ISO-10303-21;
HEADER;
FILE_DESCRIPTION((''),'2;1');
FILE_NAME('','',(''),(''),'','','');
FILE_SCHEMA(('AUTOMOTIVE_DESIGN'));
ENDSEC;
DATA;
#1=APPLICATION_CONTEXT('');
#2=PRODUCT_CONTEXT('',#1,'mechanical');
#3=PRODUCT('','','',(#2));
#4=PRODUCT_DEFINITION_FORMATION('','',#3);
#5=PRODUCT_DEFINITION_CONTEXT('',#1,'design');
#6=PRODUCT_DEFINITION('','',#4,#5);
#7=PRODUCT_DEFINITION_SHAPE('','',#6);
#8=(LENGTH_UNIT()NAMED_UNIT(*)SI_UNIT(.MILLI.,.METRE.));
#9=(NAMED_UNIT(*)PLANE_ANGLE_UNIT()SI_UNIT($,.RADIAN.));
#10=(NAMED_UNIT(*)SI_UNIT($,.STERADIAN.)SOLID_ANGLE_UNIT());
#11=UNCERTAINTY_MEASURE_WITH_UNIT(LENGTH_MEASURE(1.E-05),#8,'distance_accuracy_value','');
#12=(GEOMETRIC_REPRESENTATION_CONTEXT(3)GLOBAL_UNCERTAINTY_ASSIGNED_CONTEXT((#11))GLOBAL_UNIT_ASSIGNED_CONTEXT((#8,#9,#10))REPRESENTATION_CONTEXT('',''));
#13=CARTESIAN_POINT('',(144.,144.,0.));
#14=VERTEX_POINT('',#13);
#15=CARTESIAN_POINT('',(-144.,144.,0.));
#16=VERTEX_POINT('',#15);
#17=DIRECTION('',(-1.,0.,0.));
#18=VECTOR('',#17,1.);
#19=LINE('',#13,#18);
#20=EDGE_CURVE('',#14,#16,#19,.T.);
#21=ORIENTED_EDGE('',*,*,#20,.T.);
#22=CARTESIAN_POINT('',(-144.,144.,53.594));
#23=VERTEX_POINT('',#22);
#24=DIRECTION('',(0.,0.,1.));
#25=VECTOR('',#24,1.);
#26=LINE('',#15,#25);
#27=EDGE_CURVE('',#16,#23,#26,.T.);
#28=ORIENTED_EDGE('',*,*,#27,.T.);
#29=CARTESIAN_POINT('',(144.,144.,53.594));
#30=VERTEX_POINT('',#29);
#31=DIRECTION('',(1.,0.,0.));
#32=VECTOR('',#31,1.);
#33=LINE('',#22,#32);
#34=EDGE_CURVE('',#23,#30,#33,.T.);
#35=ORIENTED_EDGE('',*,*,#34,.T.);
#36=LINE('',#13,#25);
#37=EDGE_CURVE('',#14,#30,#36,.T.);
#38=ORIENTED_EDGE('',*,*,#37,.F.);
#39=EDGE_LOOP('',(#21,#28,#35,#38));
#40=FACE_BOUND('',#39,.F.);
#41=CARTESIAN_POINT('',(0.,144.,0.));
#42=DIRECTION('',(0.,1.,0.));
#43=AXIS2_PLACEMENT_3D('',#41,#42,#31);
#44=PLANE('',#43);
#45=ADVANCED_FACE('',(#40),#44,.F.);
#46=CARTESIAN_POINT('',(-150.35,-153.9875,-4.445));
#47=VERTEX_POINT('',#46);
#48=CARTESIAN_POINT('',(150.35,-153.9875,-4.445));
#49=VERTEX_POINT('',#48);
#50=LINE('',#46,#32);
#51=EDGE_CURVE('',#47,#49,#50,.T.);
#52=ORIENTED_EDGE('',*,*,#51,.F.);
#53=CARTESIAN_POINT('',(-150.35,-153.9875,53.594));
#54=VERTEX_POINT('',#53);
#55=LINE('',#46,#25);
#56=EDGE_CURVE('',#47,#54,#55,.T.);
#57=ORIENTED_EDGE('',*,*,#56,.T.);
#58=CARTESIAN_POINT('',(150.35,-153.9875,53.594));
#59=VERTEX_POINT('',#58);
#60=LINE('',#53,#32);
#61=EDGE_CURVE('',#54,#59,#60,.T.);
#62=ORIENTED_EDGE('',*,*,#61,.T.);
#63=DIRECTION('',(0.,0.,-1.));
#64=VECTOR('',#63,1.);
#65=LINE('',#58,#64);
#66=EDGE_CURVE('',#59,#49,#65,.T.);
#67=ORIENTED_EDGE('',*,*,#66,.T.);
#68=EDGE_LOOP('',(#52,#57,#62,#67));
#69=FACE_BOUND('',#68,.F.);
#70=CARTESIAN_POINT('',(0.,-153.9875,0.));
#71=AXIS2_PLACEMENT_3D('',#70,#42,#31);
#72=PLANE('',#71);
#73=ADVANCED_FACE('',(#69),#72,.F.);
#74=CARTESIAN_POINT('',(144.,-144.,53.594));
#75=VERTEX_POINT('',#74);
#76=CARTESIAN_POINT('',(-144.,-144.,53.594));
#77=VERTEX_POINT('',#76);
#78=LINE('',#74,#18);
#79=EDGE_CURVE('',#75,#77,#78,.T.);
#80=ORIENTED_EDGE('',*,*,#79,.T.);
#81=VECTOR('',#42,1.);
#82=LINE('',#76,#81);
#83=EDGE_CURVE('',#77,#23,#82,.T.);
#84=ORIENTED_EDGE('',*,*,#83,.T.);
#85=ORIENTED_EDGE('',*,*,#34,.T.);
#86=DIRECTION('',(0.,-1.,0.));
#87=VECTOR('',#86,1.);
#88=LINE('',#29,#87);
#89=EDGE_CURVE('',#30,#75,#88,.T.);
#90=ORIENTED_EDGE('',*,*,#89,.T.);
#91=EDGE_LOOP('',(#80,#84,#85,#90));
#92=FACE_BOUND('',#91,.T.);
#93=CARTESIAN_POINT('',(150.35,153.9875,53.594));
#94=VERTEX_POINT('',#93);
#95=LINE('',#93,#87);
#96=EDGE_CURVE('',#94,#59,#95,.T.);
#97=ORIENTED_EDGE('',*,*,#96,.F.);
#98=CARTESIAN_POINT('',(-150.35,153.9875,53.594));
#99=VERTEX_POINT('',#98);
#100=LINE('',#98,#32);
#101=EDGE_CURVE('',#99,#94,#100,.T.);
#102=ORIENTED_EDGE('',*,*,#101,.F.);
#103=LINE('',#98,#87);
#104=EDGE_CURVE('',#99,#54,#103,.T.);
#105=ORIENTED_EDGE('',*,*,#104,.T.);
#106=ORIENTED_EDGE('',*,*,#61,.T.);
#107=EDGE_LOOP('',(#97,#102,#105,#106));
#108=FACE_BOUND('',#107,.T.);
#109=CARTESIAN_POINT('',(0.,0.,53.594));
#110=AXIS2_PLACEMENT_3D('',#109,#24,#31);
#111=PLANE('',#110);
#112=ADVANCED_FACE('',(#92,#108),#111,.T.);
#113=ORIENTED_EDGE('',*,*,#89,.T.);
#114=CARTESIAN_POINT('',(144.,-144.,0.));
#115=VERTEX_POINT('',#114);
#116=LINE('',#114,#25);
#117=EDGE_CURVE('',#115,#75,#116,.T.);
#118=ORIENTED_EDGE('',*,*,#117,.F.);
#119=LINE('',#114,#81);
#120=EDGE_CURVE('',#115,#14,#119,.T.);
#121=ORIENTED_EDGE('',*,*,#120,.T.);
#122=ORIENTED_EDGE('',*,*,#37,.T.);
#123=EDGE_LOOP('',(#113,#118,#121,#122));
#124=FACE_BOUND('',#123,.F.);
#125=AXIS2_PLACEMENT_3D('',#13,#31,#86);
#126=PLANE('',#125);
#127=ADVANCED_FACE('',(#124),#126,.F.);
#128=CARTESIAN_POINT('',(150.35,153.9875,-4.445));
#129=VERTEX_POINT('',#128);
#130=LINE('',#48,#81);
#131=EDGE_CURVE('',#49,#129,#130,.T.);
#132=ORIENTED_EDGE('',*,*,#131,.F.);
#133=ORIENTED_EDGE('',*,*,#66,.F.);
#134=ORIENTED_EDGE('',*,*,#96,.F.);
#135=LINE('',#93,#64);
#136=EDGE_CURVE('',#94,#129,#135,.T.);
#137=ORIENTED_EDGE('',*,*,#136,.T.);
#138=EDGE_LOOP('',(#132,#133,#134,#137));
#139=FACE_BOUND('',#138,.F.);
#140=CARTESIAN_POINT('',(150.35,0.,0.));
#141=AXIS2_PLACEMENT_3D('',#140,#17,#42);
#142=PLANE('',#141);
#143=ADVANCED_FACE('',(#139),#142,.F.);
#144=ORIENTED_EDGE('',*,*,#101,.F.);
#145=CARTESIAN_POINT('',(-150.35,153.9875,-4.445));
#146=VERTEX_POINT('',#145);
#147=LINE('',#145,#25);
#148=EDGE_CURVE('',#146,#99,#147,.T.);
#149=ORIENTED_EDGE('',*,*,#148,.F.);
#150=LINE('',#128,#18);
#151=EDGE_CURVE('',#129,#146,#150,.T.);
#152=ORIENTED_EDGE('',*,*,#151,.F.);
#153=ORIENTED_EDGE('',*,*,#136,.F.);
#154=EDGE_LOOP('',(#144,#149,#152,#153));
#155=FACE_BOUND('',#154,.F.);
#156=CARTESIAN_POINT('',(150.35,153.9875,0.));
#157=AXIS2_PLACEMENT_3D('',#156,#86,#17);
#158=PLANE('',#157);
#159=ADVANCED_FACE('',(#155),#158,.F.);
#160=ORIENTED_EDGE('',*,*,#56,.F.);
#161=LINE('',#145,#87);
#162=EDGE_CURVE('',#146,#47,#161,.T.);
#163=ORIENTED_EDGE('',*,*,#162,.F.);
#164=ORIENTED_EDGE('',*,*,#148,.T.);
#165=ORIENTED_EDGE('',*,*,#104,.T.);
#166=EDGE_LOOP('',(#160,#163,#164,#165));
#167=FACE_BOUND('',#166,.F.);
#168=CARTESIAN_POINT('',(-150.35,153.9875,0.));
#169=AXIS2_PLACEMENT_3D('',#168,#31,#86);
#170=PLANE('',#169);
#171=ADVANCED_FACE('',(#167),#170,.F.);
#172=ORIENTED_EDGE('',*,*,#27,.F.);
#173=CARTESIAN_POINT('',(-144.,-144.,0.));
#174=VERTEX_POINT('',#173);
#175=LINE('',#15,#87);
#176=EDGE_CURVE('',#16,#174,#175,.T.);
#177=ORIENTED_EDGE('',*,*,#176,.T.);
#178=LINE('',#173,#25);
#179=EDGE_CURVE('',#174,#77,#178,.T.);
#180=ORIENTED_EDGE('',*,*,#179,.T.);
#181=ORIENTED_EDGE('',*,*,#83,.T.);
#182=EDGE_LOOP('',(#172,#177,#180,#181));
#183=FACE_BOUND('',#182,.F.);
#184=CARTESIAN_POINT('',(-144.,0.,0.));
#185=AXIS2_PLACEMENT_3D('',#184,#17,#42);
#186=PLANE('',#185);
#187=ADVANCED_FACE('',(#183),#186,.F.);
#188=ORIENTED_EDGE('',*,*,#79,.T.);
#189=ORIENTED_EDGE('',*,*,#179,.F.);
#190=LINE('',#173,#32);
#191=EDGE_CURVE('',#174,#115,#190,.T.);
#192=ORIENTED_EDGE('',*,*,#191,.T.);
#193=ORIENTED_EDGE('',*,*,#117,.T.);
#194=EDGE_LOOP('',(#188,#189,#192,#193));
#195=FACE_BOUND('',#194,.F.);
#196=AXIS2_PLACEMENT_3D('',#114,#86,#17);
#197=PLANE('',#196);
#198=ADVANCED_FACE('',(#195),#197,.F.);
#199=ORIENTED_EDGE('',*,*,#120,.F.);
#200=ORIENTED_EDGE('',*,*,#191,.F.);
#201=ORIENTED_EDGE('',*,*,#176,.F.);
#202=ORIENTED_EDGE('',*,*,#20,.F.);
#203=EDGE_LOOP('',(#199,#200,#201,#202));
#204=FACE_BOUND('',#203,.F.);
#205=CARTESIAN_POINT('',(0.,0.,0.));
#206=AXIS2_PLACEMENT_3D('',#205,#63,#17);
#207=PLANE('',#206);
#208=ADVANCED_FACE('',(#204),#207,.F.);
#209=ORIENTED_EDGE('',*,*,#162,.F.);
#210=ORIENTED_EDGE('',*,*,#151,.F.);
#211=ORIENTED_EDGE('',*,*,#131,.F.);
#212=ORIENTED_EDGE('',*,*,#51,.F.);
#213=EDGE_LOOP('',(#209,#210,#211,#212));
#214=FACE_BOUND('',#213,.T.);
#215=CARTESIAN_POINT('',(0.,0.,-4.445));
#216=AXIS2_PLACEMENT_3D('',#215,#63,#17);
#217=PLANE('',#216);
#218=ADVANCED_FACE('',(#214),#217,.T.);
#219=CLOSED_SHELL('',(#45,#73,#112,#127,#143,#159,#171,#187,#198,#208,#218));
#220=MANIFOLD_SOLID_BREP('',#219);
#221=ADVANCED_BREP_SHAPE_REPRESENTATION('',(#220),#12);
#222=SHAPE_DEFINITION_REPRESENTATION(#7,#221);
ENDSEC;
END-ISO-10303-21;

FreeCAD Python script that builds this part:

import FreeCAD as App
import Part
import Sketcher
from FreeCAD import Vector
Q = App.Units.Quantity

doc = App.newDocument("Part")
body = doc.addObject("PartDesign::Body", "Body")

sketch1 = doc.addObject("Sketcher::SketchObject", "Sketch")
body.addObject(sketch1)
sketch1.AttachmentSupport = (doc.XY_Plane, [""])
sketch1.MapMode = "FlatFace"
sketch1.addGeometry([
    Part.LineSegment(Vector(150, 154, 0), Vector(-150, 154, 0)),
    Part.LineSegment(Vector(-150, 154, 0), Vector(-150, -154, 0)),
    Part.LineSegment(Vector(-150, -154, 0), Vector(150, -154, 0)),
    Part.LineSegment(Vector(150, -154, 0), Vector(150, 154, 0)),
    Part.LineSegment(Vector(144, 144, 0), Vector(144, -144, 0)),
    Part.LineSegment(Vector(144, -144, 0), Vector(-144, -144, 0)),
    Part.LineSegment(Vector(-144, -144, 0), Vector(-144, 144, 0)),
    Part.LineSegment(Vector(-144, 144, 0), Vector(144, 144, 0)),
], False)
sketch1.addConstraint([
    Sketcher.Constraint("Coincident", 0, 2, 1, 1),
    Sketcher.Constraint("Coincident", 1, 2, 2, 1),
    Sketcher.Constraint("Coincident", 2, 2, 3, 1),
    Sketcher.Constraint("Coincident", 3, 2, 0, 1),
    Sketcher.Constraint("Coincident", 4, 2, 5, 1),
    Sketcher.Constraint("Coincident", 5, 2, 6, 1),
    Sketcher.Constraint("Coincident", 6, 2, 7, 1),
    Sketcher.Constraint("Coincident", 7, 2, 4, 1),
    Sketcher.Constraint("Horizontal", 0),
    Sketcher.Constraint("Vertical", 1),
    Sketcher.Constraint("Horizontal", 2),
    Sketcher.Constraint("Vertical", 3),
    Sketcher.Constraint("Vertical", 4),
    Sketcher.Constraint("Horizontal", 5),
    Sketcher.Constraint("Vertical", 6),
    Sketcher.Constraint("Horizontal", 7),
    Sketcher.Constraint("Symmetric", 0, 2, 2, 2, -1, 1),
    Sketcher.Constraint("Symmetric", 4, 2, 6, 2, -1, 1),
    Sketcher.Constraint("Equal", 7, 4),
    Sketcher.Constraint("DistanceY", 1, 2, 1, 1, Q("12.125 in")),
    Sketcher.Constraint("DistanceX", 4, 2, 2, 2, Q("0.25 in")),
    Sketcher.Constraint("DistanceX", 5, 2, 5, 1, Q("288 mm")),
])
pad1 = doc.addObject("PartDesign::Pad", "Pad")
body.addObject(pad1)
pad1.Profile = sketch1
pad1.Length = Q("2.11 in")

sketch2 = doc.addObject("Sketcher::SketchObject", "Sketch001")
body.addObject(sketch2)
sketch2.AttachmentSupport = (doc.XY_Plane, [""])
sketch2.MapMode = "FlatFace"
sketch2.addGeometry([
    Part.LineSegment(Vector(-150, 154, 0), Vector(150, 154, 0)),
    Part.LineSegment(Vector(150, 154, 0), Vector(150, -154, 0)),
    Part.LineSegment(Vector(150, -154, 0), Vector(-150, -154, 0)),
    Part.LineSegment(Vector(-150, -154, 0), Vector(-150, 154, 0)),
], False)
sketch2.addConstraint([
    Sketcher.Constraint("Coincident", 0, 2, 1, 1),
    Sketcher.Constraint("Coincident", 1, 2, 2, 1),
    Sketcher.Constraint("Coincident", 2, 2, 3, 1),
    Sketcher.Constraint("Coincident", 3, 2, 0, 1),
    Sketcher.Constraint("Horizontal", 0),
    Sketcher.Constraint("Vertical", 1),
    Sketcher.Constraint("Horizontal", 2),
    Sketcher.Constraint("Vertical", 3),
    Sketcher.Constraint("Symmetric", 0, 2, 2, 2, -1, 1),
    Sketcher.Constraint("DistanceY", 1, 2, 1, 1, Q("12.125 in")),
    Sketcher.Constraint("DistanceX", 0, 1, 0, 2, Q("300.7 mm")),
])
pad2 = doc.addObject("PartDesign::Pad", "Pad001")
body.addObject(pad2)
pad2.Profile = sketch2
pad2.Length = Q("0.175 in")
pad2.Reversed = True

doc.recompute()
